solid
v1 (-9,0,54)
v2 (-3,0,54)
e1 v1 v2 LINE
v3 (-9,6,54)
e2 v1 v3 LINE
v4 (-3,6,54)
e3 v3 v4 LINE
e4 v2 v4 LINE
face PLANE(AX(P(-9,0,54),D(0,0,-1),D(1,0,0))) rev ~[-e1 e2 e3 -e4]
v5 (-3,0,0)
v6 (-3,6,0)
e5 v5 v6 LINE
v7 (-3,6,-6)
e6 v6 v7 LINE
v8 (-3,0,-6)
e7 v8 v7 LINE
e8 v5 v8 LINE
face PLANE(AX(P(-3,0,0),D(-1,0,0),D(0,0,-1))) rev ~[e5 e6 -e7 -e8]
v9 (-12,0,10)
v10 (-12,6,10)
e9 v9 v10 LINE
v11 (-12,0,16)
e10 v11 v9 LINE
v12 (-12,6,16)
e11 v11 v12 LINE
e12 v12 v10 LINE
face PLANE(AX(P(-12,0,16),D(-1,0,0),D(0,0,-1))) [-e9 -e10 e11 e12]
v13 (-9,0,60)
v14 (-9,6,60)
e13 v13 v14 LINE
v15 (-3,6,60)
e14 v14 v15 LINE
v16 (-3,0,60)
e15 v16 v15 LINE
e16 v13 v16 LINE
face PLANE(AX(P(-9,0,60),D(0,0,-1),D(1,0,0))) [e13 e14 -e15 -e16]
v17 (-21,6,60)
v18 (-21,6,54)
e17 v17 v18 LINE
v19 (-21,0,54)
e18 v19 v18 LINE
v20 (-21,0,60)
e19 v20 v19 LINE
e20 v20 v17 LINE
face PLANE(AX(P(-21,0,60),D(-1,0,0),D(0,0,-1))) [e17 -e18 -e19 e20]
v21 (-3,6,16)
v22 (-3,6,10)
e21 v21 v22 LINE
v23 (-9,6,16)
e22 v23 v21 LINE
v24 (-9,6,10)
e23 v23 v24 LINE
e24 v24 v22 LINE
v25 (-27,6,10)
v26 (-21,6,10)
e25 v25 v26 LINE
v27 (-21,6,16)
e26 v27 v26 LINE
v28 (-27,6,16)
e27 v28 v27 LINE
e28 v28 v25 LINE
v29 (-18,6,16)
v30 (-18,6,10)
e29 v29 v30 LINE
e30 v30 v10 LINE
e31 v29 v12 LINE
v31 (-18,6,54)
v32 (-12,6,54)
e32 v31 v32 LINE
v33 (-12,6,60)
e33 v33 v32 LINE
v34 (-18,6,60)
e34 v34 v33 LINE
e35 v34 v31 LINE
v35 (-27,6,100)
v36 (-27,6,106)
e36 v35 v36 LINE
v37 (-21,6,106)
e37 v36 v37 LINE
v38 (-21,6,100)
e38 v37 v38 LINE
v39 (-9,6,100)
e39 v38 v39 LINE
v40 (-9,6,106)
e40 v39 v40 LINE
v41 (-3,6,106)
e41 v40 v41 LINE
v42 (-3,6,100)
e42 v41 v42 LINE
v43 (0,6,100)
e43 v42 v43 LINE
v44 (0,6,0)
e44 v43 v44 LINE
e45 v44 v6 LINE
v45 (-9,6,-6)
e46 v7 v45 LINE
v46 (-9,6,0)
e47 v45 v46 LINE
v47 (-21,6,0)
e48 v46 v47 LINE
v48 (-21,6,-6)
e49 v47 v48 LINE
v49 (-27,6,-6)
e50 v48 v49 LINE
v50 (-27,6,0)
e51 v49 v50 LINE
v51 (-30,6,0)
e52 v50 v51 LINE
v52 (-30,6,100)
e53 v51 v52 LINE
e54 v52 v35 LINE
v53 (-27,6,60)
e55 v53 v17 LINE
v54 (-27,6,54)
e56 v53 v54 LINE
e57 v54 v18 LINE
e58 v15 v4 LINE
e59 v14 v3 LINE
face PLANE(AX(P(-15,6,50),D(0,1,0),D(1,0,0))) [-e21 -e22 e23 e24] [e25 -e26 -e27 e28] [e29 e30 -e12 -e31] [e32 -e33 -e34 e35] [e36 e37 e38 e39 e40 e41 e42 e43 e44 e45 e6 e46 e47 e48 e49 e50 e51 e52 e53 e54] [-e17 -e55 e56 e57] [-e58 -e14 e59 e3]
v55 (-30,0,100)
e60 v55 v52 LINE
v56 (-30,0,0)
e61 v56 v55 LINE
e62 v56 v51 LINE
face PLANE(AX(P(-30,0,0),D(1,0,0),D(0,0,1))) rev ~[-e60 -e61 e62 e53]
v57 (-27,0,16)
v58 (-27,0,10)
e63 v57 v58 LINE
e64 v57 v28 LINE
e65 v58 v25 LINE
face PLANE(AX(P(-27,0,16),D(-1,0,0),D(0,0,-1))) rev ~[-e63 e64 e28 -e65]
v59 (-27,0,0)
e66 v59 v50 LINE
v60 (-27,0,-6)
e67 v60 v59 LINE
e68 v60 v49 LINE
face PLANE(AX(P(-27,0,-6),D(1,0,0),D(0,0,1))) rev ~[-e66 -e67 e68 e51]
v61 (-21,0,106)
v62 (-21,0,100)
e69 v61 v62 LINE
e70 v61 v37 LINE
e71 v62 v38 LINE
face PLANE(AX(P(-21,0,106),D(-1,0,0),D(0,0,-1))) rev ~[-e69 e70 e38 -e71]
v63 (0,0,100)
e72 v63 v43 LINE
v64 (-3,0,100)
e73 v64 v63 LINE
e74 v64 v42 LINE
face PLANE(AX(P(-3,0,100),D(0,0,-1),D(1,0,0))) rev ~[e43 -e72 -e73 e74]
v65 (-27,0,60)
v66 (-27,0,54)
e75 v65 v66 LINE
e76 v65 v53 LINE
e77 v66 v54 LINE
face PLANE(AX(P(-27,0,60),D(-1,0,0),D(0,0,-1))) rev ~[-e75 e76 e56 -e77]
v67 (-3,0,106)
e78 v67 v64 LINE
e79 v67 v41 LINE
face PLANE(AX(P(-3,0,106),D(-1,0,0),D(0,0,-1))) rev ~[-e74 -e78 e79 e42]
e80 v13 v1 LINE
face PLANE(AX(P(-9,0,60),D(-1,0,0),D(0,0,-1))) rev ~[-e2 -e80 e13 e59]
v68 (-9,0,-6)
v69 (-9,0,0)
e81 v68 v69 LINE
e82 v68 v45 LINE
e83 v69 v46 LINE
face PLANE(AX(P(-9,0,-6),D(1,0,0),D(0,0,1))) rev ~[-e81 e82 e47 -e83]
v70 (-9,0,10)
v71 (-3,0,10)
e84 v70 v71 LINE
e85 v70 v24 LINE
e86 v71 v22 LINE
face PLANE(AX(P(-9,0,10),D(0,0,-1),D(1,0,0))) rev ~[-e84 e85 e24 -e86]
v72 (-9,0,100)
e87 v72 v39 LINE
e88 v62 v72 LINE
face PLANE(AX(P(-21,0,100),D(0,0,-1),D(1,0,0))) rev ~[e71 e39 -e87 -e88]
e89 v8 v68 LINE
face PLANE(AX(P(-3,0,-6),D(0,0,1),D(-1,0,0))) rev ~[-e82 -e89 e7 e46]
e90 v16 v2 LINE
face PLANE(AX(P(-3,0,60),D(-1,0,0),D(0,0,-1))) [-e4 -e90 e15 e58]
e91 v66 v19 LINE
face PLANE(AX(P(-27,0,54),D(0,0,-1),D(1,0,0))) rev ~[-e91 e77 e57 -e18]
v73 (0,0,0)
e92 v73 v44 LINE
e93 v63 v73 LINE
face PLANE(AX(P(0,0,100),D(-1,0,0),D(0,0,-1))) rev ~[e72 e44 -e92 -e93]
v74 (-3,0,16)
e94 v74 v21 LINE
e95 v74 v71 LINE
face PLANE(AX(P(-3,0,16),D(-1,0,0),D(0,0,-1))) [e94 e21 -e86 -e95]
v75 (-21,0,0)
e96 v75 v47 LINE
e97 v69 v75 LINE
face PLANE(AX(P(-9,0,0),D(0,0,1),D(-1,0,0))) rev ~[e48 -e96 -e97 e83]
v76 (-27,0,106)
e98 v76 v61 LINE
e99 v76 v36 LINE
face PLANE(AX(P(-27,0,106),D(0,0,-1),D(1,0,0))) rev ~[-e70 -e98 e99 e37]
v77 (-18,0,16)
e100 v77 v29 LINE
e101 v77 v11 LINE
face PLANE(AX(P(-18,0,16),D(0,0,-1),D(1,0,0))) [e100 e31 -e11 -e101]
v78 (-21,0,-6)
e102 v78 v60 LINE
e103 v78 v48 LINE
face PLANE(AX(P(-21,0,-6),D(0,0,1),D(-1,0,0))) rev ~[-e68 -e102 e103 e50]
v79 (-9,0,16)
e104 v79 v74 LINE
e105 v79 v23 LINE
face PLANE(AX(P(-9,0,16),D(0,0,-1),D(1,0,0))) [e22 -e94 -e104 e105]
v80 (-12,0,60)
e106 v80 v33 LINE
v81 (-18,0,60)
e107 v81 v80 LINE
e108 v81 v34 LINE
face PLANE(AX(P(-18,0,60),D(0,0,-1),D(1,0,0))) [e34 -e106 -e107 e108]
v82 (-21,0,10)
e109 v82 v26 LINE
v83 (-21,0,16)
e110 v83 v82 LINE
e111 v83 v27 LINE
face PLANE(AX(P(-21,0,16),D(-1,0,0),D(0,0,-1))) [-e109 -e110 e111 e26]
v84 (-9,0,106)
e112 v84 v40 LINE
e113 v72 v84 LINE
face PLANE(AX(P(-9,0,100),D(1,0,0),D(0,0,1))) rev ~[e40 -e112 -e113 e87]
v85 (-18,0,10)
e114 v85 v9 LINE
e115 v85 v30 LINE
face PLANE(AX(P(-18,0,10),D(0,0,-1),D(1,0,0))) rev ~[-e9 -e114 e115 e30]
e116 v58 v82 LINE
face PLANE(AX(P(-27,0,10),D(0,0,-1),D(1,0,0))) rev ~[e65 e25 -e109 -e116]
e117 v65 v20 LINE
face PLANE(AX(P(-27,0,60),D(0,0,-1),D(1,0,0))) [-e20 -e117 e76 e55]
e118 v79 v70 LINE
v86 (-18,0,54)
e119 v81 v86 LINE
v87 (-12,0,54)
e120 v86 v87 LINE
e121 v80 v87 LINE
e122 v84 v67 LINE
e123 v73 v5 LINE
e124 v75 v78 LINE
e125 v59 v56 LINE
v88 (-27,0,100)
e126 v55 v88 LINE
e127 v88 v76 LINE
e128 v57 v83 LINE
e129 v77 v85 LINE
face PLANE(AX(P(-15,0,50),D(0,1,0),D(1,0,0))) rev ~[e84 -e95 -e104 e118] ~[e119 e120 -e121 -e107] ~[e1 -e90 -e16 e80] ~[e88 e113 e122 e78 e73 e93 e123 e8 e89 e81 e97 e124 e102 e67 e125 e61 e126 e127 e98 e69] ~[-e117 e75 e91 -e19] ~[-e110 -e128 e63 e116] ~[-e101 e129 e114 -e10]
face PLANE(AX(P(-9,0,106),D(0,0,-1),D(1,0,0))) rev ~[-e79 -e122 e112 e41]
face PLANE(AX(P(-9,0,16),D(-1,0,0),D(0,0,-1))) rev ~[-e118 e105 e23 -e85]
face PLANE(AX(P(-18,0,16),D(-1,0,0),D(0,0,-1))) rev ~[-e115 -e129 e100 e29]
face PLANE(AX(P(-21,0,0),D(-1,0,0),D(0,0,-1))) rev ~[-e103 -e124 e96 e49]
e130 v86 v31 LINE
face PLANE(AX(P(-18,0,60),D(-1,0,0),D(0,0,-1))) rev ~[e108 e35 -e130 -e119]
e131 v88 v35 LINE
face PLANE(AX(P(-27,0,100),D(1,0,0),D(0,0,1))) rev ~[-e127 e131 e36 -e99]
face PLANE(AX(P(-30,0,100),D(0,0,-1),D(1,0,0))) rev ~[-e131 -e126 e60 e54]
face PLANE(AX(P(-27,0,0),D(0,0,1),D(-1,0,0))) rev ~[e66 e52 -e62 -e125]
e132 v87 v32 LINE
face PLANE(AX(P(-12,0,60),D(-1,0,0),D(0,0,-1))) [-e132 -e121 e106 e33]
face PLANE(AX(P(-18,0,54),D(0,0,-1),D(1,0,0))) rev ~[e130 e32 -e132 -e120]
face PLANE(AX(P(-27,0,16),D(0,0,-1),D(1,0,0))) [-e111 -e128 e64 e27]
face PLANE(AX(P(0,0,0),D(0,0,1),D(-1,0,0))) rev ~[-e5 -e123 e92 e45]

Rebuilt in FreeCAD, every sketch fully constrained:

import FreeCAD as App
import Part
import Sketcher
Q = App.Units.Quantity


def add_polygon(sketch, points):
    """Adds a closed chain of lines whose ends are joined by coincident constraints."""
    first, n = sketch.GeometryCount, len(points)
    for a, b in zip(points, points[1:] + points[:1]):
        sketch.addGeometry(Part.LineSegment(App.Vector(*a, 0), App.Vector(*b, 0)), False)
    for i in range(n):
        sketch.addConstraint(Sketcher.Constraint("Coincident", first + i, 2, first + (i + 1) % n, 1))

doc = App.newDocument("Part")
body = doc.addObject("PartDesign::Body", "Body")

sketch1 = body.newObject("Sketcher::SketchObject", "Sketch")
sketch1.AttachmentSupport = (doc.getObject("XZ_Plane"), [""])
sketch1.MapMode = "FlatFace"
add_polygon(sketch1, [(0, 0), (-3, 0), (-3, -6), (-9, -6), (-9, 0), (-21, 0), (-21, -6), (-27, -6), (-27, 0), (-30, 0), (-30, 100), (-27, 100), (-27, 106), (-21, 106), (-21, 100), (-9, 100), (-9, 106), (-3, 106), (-3, 100), (0, 100)])
add_polygon(sketch1, [(-21, 60), (-27, 60), (-27, 54), (-21, 54)])
add_polygon(sketch1, [(-12, 60), (-18, 60), (-18, 54), (-12, 54)])
add_polygon(sketch1, [(-3, 60), (-9, 60), (-9, 54), (-3, 54)])
add_polygon(sketch1, [(-21, 16), (-27, 16), (-27, 10), (-21, 10)])
add_polygon(sketch1, [(-12, 16), (-18, 16), (-18, 10), (-12, 10)])
add_polygon(sketch1, [(-3, 16), (-9, 16), (-9, 10), (-3, 10)])
sketch1.addConstraint([
    Sketcher.Constraint("Horizontal", 0),
    Sketcher.Constraint("Vertical", 1),
    Sketcher.Constraint("Horizontal", 2),
    Sketcher.Constraint("Vertical", 3),
    Sketcher.Constraint("Horizontal", 4),
    Sketcher.Constraint("Vertical", 5),
    Sketcher.Constraint("Horizontal", 6),
    Sketcher.Constraint("Vertical", 7),
    Sketcher.Constraint("Horizontal", 8),
    Sketcher.Constraint("Vertical", 9),
    Sketcher.Constraint("Horizontal", 10),
    Sketcher.Constraint("Vertical", 11),
    Sketcher.Constraint("Horizontal", 12),
    Sketcher.Constraint("Vertical", 13),
    Sketcher.Constraint("Horizontal", 14),
    Sketcher.Constraint("Vertical", 15),
    Sketcher.Constraint("Horizontal", 16),
    Sketcher.Constraint("Vertical", 17),
    Sketcher.Constraint("Horizontal", 18),
    Sketcher.Constraint("Vertical", 19),
    Sketcher.Constraint("Horizontal", 20),
    Sketcher.Constraint("Vertical", 21),
    Sketcher.Constraint("Horizontal", 22),
    Sketcher.Constraint("Vertical", 23),
    Sketcher.Constraint("Horizontal", 24),
    Sketcher.Constraint("Vertical", 25),
    Sketcher.Constraint("Horizontal", 26),
    Sketcher.Constraint("Vertical", 27),
    Sketcher.Constraint("Horizontal", 28),
    Sketcher.Constraint("Vertical", 29),
    Sketcher.Constraint("Horizontal", 30),
    Sketcher.Constraint("Vertical", 31),
    Sketcher.Constraint("Horizontal", 32),
    Sketcher.Constraint("Vertical", 33),
    Sketcher.Constraint("Horizontal", 34),
    Sketcher.Constraint("Vertical", 35),
    Sketcher.Constraint("Horizontal", 36),
    Sketcher.Constraint("Vertical", 37),
    Sketcher.Constraint("Horizontal", 38),
    Sketcher.Constraint("Vertical", 39),
    Sketcher.Constraint("Horizontal", 40),
    Sketcher.Constraint("Vertical", 41),
    Sketcher.Constraint("Horizontal", 42),
    Sketcher.Constraint("Vertical", 43),
    Sketcher.Constraint("Coincident", 19, 2, -1, 1),
    Sketcher.Constraint("PointOnObject", 3, 2, -1),
    Sketcher.Constraint("PointOnObject", 7, 2, -1),
    Sketcher.Constraint("Horizontal", 2, 2, 5, 2),
    Sketcher.Constraint("Horizontal", 10, 2, 13, 2),
    Sketcher.Constraint("Horizontal", 12, 2, 15, 2),
    Sketcher.Constraint("Horizontal", 14, 2, 17, 2),
    Sketcher.Constraint("Horizontal", 23, 2, 24, 2),
    Sketcher.Constraint("Horizontal", 22, 2, 25, 2),
    Sketcher.Constraint("Horizontal", 27, 2, 28, 2),
    Sketcher.Constraint("Horizontal", 26, 2, 29, 2),
    Sketcher.Constraint("Horizontal", 35, 2, 36, 2),
    Sketcher.Constraint("Horizontal", 34, 2, 37, 2),
    Sketcher.Constraint("Horizontal", 39, 2, 40, 2),
    Sketcher.Constraint("Horizontal", 38, 2, 41, 2),
    Sketcher.Constraint("Vertical", 7, 2, 10, 2),
    Sketcher.Constraint("Vertical", 5, 2, 12, 2),
    Sketcher.Constraint("Vertical", 3, 2, 14, 2),
    Sketcher.Constraint("Vertical", 1, 2, 16, 2),
    Sketcher.Constraint("Vertical", 11, 2, 20, 2),
    Sketcher.Constraint("Vertical", 13, 2, 22, 2),
    Sketcher.Constraint("Vertical", 15, 2, 28, 2),
    Sketcher.Constraint("Vertical", 17, 2, 30, 2),
    Sketcher.Constraint("Vertical", 21, 2, 32, 2),
    Sketcher.Constraint("Vertical", 23, 2, 34, 2),
    Sketcher.Constraint("Vertical", 25, 2, 36, 2),
    Sketcher.Constraint("Vertical", 27, 2, 38, 2),
    Sketcher.Constraint("Vertical", 29, 2, 40, 2),
    Sketcher.Constraint("Vertical", 31, 2, 42, 2),
    Sketcher.Constraint("Equal", 2, 6),
    Sketcher.Constraint("Equal", 0, 8),
    Sketcher.Constraint("Equal", 22, 24),
    Sketcher.Constraint("Equal", 42, 1),
    Sketcher.Constraint("Equal", 7, 11),
    Sketcher.Constraint("Equal", 17, 21),
    Sketcher.Constraint("Equal", 31, 33),
    Sketcher.Constraint("DistanceX", 0, 2, 0, 1, Q("3 mm")),
    Sketcher.Constraint("DistanceX", 2, 2, 2, 1, Q("6 mm")),
    Sketcher.Constraint("DistanceX", 4, 2, 4, 1, Q("12 mm")),
    Sketcher.Constraint("DistanceY", 9, 1, 9, 2, Q("100 mm")),
    Sketcher.Constraint("DistanceY", -1, 1, 20, 2, Q("60 mm")),
    Sketcher.Constraint("DistanceX", 24, 2, -1, 1, Q("18 mm")),
    Sketcher.Constraint("DistanceY", -1, 1, 32, 2, Q("16 mm")),
])
pad1 = body.newObject("PartDesign::Pad", "Pad")
pad1.Profile = sketch1
pad1.Length = 6
pad1.Reversed = True

doc.recompute()
